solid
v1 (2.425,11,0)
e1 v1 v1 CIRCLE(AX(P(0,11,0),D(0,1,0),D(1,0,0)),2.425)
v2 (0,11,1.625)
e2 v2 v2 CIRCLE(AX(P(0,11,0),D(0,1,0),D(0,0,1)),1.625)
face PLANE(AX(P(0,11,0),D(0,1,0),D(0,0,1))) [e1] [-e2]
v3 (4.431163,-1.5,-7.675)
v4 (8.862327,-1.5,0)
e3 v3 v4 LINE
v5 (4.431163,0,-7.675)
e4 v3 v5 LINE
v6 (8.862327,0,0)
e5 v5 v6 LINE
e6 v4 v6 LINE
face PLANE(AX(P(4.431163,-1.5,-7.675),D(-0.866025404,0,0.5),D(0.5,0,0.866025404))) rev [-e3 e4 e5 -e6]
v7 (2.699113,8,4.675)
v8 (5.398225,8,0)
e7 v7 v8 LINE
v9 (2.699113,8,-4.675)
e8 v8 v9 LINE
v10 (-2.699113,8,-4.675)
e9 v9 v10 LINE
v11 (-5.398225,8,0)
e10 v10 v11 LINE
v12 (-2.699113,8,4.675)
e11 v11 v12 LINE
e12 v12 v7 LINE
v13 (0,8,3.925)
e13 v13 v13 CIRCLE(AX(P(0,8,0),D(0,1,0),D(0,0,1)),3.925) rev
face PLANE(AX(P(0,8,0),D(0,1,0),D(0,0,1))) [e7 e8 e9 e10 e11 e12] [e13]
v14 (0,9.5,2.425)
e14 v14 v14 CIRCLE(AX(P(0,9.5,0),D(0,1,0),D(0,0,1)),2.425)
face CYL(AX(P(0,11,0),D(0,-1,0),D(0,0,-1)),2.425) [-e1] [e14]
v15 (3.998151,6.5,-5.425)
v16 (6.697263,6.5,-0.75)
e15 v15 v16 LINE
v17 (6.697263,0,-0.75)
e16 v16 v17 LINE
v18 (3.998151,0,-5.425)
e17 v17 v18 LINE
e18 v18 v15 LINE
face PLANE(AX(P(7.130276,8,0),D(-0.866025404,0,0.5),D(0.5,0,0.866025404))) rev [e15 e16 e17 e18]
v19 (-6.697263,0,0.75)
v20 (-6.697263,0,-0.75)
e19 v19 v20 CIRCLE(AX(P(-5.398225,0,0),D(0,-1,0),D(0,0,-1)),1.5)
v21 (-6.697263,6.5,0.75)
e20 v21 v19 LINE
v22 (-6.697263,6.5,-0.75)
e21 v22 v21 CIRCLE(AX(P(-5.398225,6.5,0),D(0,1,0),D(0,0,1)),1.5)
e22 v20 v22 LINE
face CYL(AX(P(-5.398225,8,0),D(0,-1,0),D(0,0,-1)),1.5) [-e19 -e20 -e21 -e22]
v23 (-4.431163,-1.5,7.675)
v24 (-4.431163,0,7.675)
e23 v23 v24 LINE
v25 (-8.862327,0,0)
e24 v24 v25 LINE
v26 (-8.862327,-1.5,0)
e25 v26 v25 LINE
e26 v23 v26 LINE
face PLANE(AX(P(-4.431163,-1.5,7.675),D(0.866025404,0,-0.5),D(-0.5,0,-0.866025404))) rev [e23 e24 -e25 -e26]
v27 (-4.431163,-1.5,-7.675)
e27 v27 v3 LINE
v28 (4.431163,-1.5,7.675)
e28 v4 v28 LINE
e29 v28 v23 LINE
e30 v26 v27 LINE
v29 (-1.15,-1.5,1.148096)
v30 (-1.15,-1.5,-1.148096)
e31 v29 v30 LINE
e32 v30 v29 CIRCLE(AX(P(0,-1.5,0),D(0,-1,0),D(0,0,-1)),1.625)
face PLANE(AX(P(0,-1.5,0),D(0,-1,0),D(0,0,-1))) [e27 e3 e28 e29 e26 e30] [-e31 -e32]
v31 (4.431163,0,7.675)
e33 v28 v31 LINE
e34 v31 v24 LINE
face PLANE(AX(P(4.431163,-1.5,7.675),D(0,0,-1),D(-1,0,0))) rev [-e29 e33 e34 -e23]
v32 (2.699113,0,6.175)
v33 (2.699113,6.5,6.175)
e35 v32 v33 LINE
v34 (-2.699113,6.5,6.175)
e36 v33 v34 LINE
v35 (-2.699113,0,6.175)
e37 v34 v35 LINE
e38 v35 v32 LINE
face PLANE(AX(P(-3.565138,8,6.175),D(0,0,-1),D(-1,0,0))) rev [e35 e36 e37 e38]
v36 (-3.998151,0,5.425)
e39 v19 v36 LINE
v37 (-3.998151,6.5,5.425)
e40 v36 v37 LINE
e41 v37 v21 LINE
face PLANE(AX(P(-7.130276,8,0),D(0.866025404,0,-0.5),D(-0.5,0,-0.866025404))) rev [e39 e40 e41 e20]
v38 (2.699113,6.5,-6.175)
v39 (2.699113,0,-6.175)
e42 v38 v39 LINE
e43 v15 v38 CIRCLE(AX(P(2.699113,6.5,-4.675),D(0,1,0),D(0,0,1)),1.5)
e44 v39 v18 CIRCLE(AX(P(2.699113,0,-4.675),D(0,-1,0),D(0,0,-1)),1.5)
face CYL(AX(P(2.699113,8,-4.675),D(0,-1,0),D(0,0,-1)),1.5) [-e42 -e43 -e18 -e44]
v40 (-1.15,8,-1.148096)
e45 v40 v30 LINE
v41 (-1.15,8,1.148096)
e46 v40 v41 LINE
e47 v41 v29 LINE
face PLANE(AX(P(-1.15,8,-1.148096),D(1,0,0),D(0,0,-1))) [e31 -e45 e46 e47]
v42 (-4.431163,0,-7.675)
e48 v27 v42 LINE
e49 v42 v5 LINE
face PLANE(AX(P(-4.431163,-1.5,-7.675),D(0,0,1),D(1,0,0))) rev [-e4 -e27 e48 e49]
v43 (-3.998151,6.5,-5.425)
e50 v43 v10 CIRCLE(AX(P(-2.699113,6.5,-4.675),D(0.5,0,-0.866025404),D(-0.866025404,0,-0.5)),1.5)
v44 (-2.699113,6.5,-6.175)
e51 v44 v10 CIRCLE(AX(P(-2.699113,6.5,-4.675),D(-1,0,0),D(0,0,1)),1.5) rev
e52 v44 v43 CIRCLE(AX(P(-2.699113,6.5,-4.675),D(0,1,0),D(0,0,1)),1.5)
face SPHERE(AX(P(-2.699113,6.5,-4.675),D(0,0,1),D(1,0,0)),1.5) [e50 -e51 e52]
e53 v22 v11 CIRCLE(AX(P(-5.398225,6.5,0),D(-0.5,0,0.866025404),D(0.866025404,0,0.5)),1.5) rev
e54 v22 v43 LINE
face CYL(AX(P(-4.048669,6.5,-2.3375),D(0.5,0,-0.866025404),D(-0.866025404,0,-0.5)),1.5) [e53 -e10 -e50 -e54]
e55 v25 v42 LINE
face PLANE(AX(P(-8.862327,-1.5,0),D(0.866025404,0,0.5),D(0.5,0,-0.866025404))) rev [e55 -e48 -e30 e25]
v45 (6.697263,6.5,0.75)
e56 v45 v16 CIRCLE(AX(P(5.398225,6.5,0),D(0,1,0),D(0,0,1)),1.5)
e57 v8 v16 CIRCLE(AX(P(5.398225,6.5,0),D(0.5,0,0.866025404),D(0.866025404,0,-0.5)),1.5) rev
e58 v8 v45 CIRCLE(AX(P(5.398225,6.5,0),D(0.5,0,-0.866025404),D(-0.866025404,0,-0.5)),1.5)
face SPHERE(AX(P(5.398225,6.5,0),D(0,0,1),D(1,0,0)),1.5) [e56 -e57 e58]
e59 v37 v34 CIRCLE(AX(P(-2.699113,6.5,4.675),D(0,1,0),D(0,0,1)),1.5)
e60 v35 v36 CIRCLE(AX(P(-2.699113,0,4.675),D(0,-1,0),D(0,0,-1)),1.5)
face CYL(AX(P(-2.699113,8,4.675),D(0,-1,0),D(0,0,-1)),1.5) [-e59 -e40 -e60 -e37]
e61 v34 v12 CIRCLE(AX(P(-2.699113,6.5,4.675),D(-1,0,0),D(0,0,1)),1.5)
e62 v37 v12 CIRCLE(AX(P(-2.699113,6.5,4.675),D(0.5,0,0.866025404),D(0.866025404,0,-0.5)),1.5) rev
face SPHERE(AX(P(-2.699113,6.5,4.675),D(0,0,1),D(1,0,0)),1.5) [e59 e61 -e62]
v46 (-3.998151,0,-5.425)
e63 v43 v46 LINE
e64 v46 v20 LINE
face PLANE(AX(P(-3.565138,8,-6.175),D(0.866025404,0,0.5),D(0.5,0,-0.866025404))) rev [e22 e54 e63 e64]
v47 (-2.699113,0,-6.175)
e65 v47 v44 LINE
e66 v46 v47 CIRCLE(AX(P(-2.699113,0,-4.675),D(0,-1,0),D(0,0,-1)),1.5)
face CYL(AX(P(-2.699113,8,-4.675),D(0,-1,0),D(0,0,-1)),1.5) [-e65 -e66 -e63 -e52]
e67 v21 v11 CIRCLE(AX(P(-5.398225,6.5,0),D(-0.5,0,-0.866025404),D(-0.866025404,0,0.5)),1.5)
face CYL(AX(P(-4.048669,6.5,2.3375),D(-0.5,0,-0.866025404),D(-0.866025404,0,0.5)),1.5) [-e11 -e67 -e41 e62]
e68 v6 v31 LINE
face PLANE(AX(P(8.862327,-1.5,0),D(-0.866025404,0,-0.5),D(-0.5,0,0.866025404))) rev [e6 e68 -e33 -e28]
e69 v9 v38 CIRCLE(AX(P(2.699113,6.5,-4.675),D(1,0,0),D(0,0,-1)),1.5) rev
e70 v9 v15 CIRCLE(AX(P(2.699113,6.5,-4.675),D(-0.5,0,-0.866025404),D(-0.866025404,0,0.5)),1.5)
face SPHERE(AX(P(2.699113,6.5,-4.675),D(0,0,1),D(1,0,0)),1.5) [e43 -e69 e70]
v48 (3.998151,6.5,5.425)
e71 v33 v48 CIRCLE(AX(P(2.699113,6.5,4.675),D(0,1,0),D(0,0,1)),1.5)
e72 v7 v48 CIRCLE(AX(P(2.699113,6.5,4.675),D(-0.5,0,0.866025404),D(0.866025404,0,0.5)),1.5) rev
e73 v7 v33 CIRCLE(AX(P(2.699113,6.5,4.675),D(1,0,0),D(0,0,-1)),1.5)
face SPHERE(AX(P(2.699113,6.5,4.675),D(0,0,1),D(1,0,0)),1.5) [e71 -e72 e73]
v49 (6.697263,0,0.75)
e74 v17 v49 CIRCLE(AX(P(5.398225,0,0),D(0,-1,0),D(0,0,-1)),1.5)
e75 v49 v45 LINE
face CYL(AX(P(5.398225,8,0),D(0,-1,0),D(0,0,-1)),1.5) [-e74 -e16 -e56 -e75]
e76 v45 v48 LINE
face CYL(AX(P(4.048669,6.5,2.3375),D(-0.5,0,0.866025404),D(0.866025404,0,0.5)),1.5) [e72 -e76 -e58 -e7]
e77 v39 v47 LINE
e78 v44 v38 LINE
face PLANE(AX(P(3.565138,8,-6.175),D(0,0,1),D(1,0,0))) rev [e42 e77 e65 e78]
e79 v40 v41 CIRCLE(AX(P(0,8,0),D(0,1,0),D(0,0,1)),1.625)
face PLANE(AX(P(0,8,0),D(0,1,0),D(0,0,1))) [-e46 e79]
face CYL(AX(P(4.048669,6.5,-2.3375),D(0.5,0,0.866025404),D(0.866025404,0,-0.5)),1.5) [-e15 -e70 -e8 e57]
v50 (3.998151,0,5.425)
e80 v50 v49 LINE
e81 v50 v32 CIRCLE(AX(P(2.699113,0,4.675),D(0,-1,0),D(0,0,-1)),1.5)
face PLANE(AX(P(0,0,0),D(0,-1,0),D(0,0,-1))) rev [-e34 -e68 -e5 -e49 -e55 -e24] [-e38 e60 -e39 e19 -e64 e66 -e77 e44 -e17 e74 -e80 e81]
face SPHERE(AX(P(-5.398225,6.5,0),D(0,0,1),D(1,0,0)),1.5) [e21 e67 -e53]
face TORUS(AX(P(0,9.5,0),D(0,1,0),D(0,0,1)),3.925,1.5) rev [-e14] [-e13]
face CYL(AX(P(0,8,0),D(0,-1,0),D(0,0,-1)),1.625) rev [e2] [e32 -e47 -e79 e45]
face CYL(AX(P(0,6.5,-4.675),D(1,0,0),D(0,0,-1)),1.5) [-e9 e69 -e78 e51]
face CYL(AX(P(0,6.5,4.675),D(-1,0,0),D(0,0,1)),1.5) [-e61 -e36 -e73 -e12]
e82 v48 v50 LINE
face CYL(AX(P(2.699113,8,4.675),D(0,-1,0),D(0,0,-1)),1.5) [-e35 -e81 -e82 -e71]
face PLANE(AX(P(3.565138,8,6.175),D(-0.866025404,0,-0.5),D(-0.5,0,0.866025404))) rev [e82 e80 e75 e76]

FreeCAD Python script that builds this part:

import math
import FreeCAD as App
import Part
import Sketcher
from FreeCAD import Vector
Q = App.Units.Quantity


def edges_at(feature, points):
    """Names of the edges that pass closest to the given points."""
    edges = feature.Shape.Edges
    near = lambda p: min(range(len(edges)), key=lambda i: edges[i].distToShape(Part.Vertex(*p))[0])
    return sorted({f"Edge{near(p) + 1}" for p in points})

doc = App.newDocument("Part")
body = doc.addObject("PartDesign::Body", "Body")

# Sketch on XZ plane
sketch1 = body.newObject("Sketcher::SketchObject", "Sketch")
sketch1.AttachmentSupport = (doc.getObject("XZ_Plane"), [""])
sketch1.MapMode = "FlatFace"
sketch1.addGeometry([
    Part.LineSegment(Vector(-7.130276, 0, 0), Vector(-3.565138, 6.175, 0)),  # 0
    Part.LineSegment(Vector(-3.565138, 6.175, 0), Vector(3.565138, 6.175, 0)),  # 1
    Part.LineSegment(Vector(3.565138, 6.175, 0), Vector(7.130276, 0, 0)),  # 2
    Part.LineSegment(Vector(7.130276, 0, 0), Vector(3.565138, -6.175, 0)),  # 3
    Part.LineSegment(Vector(3.565138, -6.175, 0), Vector(-3.565138, -6.175, 0)),  # 4
    Part.LineSegment(Vector(-3.565138, -6.175, 0), Vector(-7.130276, 0, 0)),  # 5
    Part.LineSegment(Vector(-1.15, 1.148096, 0), Vector(-1.15, -1.148096, 0)),  # 6
    Part.ArcOfCircle(Part.Circle(Vector(0, 0, 0), Vector(0, 0, 1), 1.625), math.radians(-135.047464), math.radians(135.047464)),  # 7
], False)
sketch1.addConstraint([
    Sketcher.Constraint("Coincident", 0, 2, 1, 1),
    Sketcher.Constraint("Coincident", 1, 2, 2, 1),
    Sketcher.Constraint("Coincident", 2, 2, 3, 1),
    Sketcher.Constraint("Coincident", 3, 2, 4, 1),
    Sketcher.Constraint("Coincident", 4, 2, 5, 1),
    Sketcher.Constraint("Coincident", 5, 2, 0, 1),
    Sketcher.Constraint("Coincident", 6, 1, 7, 2),
    Sketcher.Constraint("Coincident", 7, 1, 6, 2),
    Sketcher.Constraint("Horizontal", 1),
    Sketcher.Constraint("Horizontal", 4),
    Sketcher.Constraint("Vertical", 6),
    Sketcher.Constraint("Coincident", 7, 3, -1, 1),
    Sketcher.Constraint("Symmetric", 0, 2, 3, 2, -1, 1),
    Sketcher.Constraint("Symmetric", 2, 2, 5, 2, -1, 1),
    Sketcher.Constraint("PointOnObject", 2, 2, -1),
    Sketcher.Constraint("Parallel", 2, 5),
    Sketcher.Constraint("Vertical", 1, 2, 3, 2),
    Sketcher.Constraint("Angle", 0, Q("60 deg")),
    Sketcher.Constraint("Radius", 7, Q("1.625 mm")),
    Sketcher.Constraint("DistanceX", 6, 1, -1, 1, Q("1.15 mm")),
    Sketcher.Constraint("DistanceY", 3, 2, 1, 2, Q("12.35 mm")),
    Sketcher.Constraint("DistanceX", 1, 1, 1, 2, Q("7.130276 mm")),
])
pad1 = body.newObject("PartDesign::Pad", "Pad")
pad1.Profile = sketch1
pad1.Length = 8
pad1.Reversed = True

# Sketch on XZ plane
sketch2 = body.newObject("Sketcher::SketchObject", "Sketch001")
sketch2.AttachmentSupport = (doc.getObject("XZ_Plane"), [""])
sketch2.MapMode = "FlatFace"
sketch2.AttachmentOffset = App.Placement(Vector(0, 0, 1.5), App.Rotation())
sketch2.addGeometry([
    Part.LineSegment(Vector(-4.431163, 7.675, 0), Vector(-8.862327, 0, 0)),  # 0
    Part.LineSegment(Vector(-8.862327, 0, 0), Vector(-4.431163, -7.675, 0)),  # 1
    Part.LineSegment(Vector(-4.431163, -7.675, 0), Vector(4.431163, -7.675, 0)),  # 2
    Part.LineSegment(Vector(4.431163, -7.675, 0), Vector(8.862327, 0, 0)),  # 3
    Part.LineSegment(Vector(8.862327, 0, 0), Vector(4.431163, 7.675, 0)),  # 4
    Part.LineSegment(Vector(4.431163, 7.675, 0), Vector(-4.431163, 7.675, 0)),  # 5
    Part.ArcOfCircle(Part.Circle(Vector(0, 0, 0), Vector(0, 0, 1), 1.625), math.radians(-135.047464), math.radians(135.047464)),  # 6
    Part.LineSegment(Vector(-1.15, -1.148096, 0), Vector(-1.15, 1.148096, 0)),  # 7
], False)
sketch2.addConstraint([
    Sketcher.Constraint("Coincident", 0, 2, 1, 1),
    Sketcher.Constraint("Coincident", 1, 2, 2, 1),
    Sketcher.Constraint("Coincident", 2, 2, 3, 1),
    Sketcher.Constraint("Coincident", 3, 2, 4, 1),
    Sketcher.Constraint("Coincident", 4, 2, 5, 1),
    Sketcher.Constraint("Coincident", 5, 2, 0, 1),
    Sketcher.Constraint("Coincident", 6, 1, 7, 1),
    Sketcher.Constraint("Coincident", 7, 2, 6, 2),
    Sketcher.Constraint("Horizontal", 2),
    Sketcher.Constraint("Horizontal", 5),
    Sketcher.Constraint("Vertical", 7),
    Sketcher.Constraint("Coincident", 6, 3, -1, 1),
    Sketcher.Constraint("Symmetric", 0, 2, 3, 2, -1, 1),
    Sketcher.Constraint("Symmetric", 1, 2, 4, 2, -1, 1),
    Sketcher.Constraint("PointOnObject", 0, 2, -1),
    Sketcher.Constraint("Parallel", 0, 3),
    Sketcher.Constraint("Vertical", 2, 2, 4, 2),
    Sketcher.Constraint("Angle", 0, Q("-120 deg")),
    Sketcher.Constraint("Radius", 6, Q("1.625 mm")),
    Sketcher.Constraint("DistanceX", 6, 1, -1, 1, Q("1.15 mm")),
    Sketcher.Constraint("DistanceY", 2, 2, 4, 2, Q("15.35 mm")),
    Sketcher.Constraint("DistanceX", 2, 1, 2, 2, Q("8.862327 mm")),
])
pad2 = body.newObject("PartDesign::Pad", "Pad001")
pad2.Profile = sketch2
pad2.Length = 1.5
pad2.Reversed = True

# Sketch on XZ plane
sketch3 = body.newObject("Sketcher::SketchObject", "Sketch002")
sketch3.AttachmentSupport = (doc.getObject("XZ_Plane"), [""])
sketch3.MapMode = "FlatFace"
sketch3.AttachmentOffset = App.Placement(Vector(0, 0, -8), App.Rotation())
sketch3.addGeometry([
    Part.Circle(Vector(0, 0, 0), Vector(0, 0, 1), 2.425),
    Part.Circle(Vector(0, 0, 0), Vector(0, 0, 1), 1.625),
], False)
sketch3.addConstraint([
    Sketcher.Constraint("Coincident", 0, 3, -1, 1),
    Sketcher.Constraint("Coincident", 1, 3, -1, 1),
    Sketcher.Constraint("Diameter", 0, Q("4.85 mm")),
    Sketcher.Constraint("Diameter", 1, Q("3.25 mm")),
])
pad3 = body.newObject("PartDesign::Pad", "Pad002")
pad3.Profile = sketch3
pad3.Length = 3
pad3.Reversed = True
doc.recompute()

fillet = body.newObject("PartDesign::Fillet", "Fillet")
fillet.Base = (pad3, edges_at(pad3, [
    (0, 8, 6.175),
    (-3.565, 4, -6.175),
    (3.565, 4, -6.175),
    (7.13, 4, 0),
    (3.565, 4, 6.175),
    (-3.565, 4, 6.175),
    (-7.13, 4, 0),
    (5.348, 8, 3.087),
    (5.348, 8, -3.087),
    (0, 8, -6.175),
    (-5.348, 8, -3.087),
    (-2.425, 8, 0),
    (-5.348, 8, 3.087),
]))
fillet.Radius = 1.5

doc.recompute()
